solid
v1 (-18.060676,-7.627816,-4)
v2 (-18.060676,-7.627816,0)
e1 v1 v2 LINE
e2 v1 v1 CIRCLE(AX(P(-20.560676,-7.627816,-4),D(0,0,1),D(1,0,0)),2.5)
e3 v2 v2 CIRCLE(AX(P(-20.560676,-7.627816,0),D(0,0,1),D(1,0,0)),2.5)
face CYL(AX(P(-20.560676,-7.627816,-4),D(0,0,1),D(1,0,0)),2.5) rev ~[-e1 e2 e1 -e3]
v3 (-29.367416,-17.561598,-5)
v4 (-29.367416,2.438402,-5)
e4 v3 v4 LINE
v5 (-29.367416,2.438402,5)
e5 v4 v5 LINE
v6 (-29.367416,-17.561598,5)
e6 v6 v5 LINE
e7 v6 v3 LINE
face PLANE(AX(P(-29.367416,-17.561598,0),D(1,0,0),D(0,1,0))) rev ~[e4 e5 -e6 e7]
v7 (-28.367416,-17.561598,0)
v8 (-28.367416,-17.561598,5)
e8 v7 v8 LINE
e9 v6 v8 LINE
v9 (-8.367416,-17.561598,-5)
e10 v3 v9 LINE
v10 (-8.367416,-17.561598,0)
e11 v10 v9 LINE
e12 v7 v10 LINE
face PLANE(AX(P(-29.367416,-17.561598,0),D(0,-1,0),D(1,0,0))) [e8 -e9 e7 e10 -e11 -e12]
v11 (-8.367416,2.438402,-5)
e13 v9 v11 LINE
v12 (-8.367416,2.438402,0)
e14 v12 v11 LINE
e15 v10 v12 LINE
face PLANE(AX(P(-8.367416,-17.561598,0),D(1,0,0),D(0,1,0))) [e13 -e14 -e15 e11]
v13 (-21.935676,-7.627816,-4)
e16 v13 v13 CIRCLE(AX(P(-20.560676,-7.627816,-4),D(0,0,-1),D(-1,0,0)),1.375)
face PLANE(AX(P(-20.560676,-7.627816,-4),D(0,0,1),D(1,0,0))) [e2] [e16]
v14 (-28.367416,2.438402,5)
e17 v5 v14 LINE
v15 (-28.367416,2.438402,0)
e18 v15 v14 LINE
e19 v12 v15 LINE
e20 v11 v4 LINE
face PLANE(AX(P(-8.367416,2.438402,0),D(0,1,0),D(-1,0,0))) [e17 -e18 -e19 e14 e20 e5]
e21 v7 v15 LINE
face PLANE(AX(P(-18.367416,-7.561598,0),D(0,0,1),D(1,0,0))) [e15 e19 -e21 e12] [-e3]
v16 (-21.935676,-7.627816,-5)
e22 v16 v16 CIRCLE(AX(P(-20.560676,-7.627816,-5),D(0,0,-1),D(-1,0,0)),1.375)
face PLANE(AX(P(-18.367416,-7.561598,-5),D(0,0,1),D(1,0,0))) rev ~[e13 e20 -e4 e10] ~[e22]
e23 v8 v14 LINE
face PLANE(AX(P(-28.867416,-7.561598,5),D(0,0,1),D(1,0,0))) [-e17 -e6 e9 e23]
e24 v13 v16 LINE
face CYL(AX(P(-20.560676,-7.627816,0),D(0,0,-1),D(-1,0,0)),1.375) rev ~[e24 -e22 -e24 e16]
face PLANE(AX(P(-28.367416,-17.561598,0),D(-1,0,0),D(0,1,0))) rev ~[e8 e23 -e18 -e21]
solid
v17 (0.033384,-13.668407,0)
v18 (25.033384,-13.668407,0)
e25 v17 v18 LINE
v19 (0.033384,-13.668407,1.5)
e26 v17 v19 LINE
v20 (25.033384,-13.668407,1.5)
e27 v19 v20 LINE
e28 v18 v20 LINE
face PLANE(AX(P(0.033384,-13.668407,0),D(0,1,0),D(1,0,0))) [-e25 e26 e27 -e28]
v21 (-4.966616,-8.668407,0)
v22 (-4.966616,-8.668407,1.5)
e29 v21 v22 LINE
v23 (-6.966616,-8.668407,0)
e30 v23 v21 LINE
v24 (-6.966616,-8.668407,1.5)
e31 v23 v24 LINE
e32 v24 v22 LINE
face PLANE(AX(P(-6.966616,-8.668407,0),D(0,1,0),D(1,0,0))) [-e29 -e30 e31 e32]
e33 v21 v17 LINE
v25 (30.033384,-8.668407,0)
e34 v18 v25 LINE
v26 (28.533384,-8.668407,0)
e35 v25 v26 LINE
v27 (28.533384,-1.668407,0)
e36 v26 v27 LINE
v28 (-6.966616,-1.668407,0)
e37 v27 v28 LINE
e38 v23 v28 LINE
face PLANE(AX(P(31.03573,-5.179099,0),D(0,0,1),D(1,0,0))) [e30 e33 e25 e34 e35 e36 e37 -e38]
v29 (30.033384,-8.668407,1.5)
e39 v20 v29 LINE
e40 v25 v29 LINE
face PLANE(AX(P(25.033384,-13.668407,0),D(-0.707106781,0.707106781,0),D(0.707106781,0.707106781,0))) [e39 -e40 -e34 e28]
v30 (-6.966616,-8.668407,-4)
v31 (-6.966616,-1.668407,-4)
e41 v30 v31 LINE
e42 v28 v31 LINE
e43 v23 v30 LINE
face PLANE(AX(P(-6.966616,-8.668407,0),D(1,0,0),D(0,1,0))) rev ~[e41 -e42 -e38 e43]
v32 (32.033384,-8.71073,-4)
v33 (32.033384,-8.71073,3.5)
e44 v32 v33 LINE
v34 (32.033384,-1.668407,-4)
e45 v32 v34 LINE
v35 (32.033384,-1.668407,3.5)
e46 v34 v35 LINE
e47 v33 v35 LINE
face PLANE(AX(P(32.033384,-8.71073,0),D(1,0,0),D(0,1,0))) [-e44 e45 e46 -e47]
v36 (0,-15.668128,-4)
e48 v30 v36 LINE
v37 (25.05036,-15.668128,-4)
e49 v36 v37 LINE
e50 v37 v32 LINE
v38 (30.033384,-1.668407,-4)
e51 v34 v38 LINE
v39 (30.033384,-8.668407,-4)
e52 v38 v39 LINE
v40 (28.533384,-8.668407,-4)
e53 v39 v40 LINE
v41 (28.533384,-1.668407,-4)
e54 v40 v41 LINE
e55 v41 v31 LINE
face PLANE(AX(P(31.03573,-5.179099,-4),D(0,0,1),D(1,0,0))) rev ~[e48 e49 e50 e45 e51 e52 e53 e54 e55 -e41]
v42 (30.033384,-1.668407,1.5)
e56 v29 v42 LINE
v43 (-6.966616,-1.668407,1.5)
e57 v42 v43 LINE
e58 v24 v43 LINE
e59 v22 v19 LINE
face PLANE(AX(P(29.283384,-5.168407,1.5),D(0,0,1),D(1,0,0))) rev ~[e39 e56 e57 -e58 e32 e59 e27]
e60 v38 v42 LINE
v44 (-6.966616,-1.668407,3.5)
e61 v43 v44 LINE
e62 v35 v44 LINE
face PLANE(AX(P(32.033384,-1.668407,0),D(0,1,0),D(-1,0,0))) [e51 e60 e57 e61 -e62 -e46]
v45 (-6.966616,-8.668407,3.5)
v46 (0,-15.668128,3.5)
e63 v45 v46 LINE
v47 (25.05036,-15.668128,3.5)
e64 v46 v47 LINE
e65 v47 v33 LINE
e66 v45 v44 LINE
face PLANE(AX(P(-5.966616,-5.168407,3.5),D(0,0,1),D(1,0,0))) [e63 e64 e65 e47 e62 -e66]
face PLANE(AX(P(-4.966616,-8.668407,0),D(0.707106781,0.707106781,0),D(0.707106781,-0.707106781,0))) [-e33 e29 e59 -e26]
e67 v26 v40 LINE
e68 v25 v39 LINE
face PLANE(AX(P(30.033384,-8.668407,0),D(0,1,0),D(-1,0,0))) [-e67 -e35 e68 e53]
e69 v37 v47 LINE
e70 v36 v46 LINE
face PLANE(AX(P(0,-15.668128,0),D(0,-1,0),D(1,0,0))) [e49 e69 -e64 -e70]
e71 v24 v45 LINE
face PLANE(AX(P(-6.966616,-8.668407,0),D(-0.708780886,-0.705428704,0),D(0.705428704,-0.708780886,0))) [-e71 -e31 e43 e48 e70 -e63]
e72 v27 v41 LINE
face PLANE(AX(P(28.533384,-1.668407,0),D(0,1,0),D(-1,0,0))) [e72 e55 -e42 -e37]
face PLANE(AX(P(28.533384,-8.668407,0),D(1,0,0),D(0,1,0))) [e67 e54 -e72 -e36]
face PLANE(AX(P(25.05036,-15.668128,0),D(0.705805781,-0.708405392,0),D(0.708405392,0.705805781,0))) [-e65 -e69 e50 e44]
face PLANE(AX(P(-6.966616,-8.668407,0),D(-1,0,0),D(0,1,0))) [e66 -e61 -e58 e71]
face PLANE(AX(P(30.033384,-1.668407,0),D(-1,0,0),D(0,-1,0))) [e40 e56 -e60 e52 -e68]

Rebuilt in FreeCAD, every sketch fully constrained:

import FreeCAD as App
import Part
import Sketcher
from FreeCAD import Vector

doc = App.newDocument("Part")
body = doc.addObject("PartDesign::Body", "Body")

sketch1 = body.newObject("Sketcher::SketchObject", "Sketch")
sketch1.AttachmentSupport = (doc.getObject("XY_Plane"), [""])
sketch1.MapMode = "FlatFace"
sketch1.addGeometry(Part.LineSegment(Vector(-7, -2, 0), Vector(-7, -9, 0)), False)
sketch1.addGeometry(Part.LineSegment(Vector(-7, -9, 0), Vector(0, -16, 0)), False)
sketch1.addGeometry(Part.LineSegment(Vector(0, -16, 0), Vector(25, -16, 0)), False)
sketch1.addGeometry(Part.LineSegment(Vector(25, -16, 0), Vector(32, -9, 0)), False)
sketch1.addGeometry(Part.LineSegment(Vector(32, -9, 0), Vector(32, -2, 0)), False)
sketch1.addGeometry(Part.LineSegment(Vector(32, -2, 0), Vector(-7, -2, 0)), False)
sketch1.addConstraint(Sketcher.Constraint("Coincident", 0, 2, 1, 1))
sketch1.addConstraint(Sketcher.Constraint("Coincident", 1, 2, 2, 1))
sketch1.addConstraint(Sketcher.Constraint("Coincident", 2, 2, 3, 1))
sketch1.addConstraint(Sketcher.Constraint("Coincident", 3, 2, 4, 1))
sketch1.addConstraint(Sketcher.Constraint("Coincident", 4, 2, 5, 1))
sketch1.addConstraint(Sketcher.Constraint("Coincident", 5, 2, 0, 1))
sketch1.addConstraint(Sketcher.Constraint("Vertical", 0))
sketch1.addConstraint(Sketcher.Constraint("Horizontal", 2))
sketch1.addConstraint(Sketcher.Constraint("Vertical", 4))
sketch1.addConstraint(Sketcher.Constraint("Horizontal", 5))
sketch1.addConstraint(Sketcher.Constraint("PointOnObject", 1, 2, -2))
sketch1.addConstraint(Sketcher.Constraint("DistanceX", 5, 2, 5, 1, 39.0))
sketch1.addConstraint(Sketcher.Constraint("DistanceY", 0, 2, 0, 1, 7.0))
sketch1.addConstraint(Sketcher.Constraint("DistanceX", 2, 1, 2, 2, 25.05036))
sketch1.addConstraint(Sketcher.Constraint("DistanceY", 2, 2, 3, 2, 6.957398))
sketch1.addConstraint(Sketcher.Constraint("Distance", 1, 9.87572))
sketch1.addConstraint(Sketcher.Constraint("DistanceY", 4, 1, 4, 2, 7.042323))
sketch1.addConstraint(Sketcher.Constraint("DistanceY", 1, 2, -1, 1, 15.668128))
pad1 = body.newObject("PartDesign::Pad", "Pad")
pad1.Profile = sketch1
pad1.Length = 3.5

sketch2 = body.newObject("Sketcher::SketchObject", "Sketch001")
sketch2.AttachmentSupport = (doc.getObject("XY_Plane"), [""])
sketch2.MapMode = "FlatFace"
sketch2.addGeometry(Part.LineSegment(Vector(30, -8.7, 0), Vector(30, -1.7, 0)), False)
sketch2.addGeometry(Part.LineSegment(Vector(30, -1.7, 0), Vector(-7, -1.7, 0)), False)
sketch2.addGeometry(Part.LineSegment(Vector(-7, -1.7, 0), Vector(-7, -8.7, 0)), False)
sketch2.addGeometry(Part.LineSegment(Vector(-7, -8.7, 0), Vector(-5, -8.7, 0)), False)
sketch2.addGeometry(Part.LineSegment(Vector(-5, -8.7, 0), Vector(0, -13.7, 0)), False)
sketch2.addGeometry(Part.LineSegment(Vector(0, -13.7, 0), Vector(25, -13.7, 0)), False)
sketch2.addGeometry(Part.LineSegment(Vector(25, -13.7, 0), Vector(30, -8.7, 0)), False)
sketch2.addConstraint(Sketcher.Constraint("Coincident", 0, 2, 1, 1))
sketch2.addConstraint(Sketcher.Constraint("Coincident", 1, 2, 2, 1))
sketch2.addConstraint(Sketcher.Constraint("Coincident", 2, 2, 3, 1))
sketch2.addConstraint(Sketcher.Constraint("Coincident", 3, 2, 4, 1))
sketch2.addConstraint(Sketcher.Constraint("Coincident", 4, 2, 5, 1))
sketch2.addConstraint(Sketcher.Constraint("Coincident", 5, 2, 6, 1))
sketch2.addConstraint(Sketcher.Constraint("Coincident", 6, 2, 0, 1))
sketch2.addConstraint(Sketcher.Constraint("Vertical", 0))
sketch2.addConstraint(Sketcher.Constraint("Horizontal", 1))
sketch2.addConstraint(Sketcher.Constraint("Vertical", 2))
sketch2.addConstraint(Sketcher.Constraint("Horizontal", 3))
sketch2.addConstraint(Sketcher.Constraint("Horizontal", 5))
sketch2.addConstraint(Sketcher.Constraint("Perpendicular", 4, 6))
sketch2.addConstraint(Sketcher.Constraint("Horizontal", 3, 2, 6, 2))
sketch2.addConstraint(Sketcher.Constraint("Equal", 4, 6))
sketch2.addConstraint(Sketcher.Constraint("DistanceX", 1, 2, 1, 1, 37.0))
sketch2.addConstraint(Sketcher.Constraint("DistanceX", 3, 1, 3, 2, 2.0))
sketch2.addConstraint(Sketcher.Constraint("DistanceX", 5, 1, 5, 2, 25.0))
sketch2.addConstraint(Sketcher.Constraint("DistanceY", 0, 1, 0, 2, 7.0))
sketch2.addConstraint(Sketcher.Constraint("DistanceX", -1, 1, 0, 2, 30.033384))
sketch2.addConstraint(Sketcher.Constraint("DistanceY", 0, 2, -1, 1, 1.668407))
pocket1 = body.newObject("PartDesign::Pocket", "Pocket")
pocket1.Profile = sketch2
pocket1.Length = 1.5
pocket1.Reversed = True

sketch3 = body.newObject("Sketcher::SketchObject", "Sketch002")
sketch3.AttachmentSupport = (doc.getObject("XY_Plane"), [""])
sketch3.MapMode = "FlatFace"
sketch3.addGeometry(Part.LineSegment(Vector(-7, -8.7, 0), Vector(0, -15.7, 0)), False)
sketch3.addGeometry(Part.LineSegment(Vector(0, -15.7, 0), Vector(25.1, -15.7, 0)), False)
sketch3.addGeometry(Part.LineSegment(Vector(25.1, -15.7, 0), Vector(32, -8.7, 0)), False)
sketch3.addGeometry(Part.LineSegment(Vector(32, -8.7, 0), Vector(32, -1.7, 0)), False)
sketch3.addGeometry(Part.LineSegment(Vector(32, -1.7, 0), Vector(30, -1.7, 0)), False)
sketch3.addGeometry(Part.LineSegment(Vector(30, -1.7, 0), Vector(30, -8.7, 0)), False)
sketch3.addGeometry(Part.LineSegment(Vector(30, -8.7, 0), Vector(28.5, -8.7, 0)), False)
sketch3.addGeometry(Part.LineSegment(Vector(28.5, -8.7, 0), Vector(28.5, -1.7, 0)), False)
sketch3.addGeometry(Part.LineSegment(Vector(28.5, -1.7, 0), Vector(-7, -1.7, 0)), False)
sketch3.addGeometry(Part.LineSegment(Vector(-7, -1.7, 0), Vector(-7, -8.7, 0)), False)
sketch3.addConstraint(Sketcher.Constraint("Coincident", 0, 2, 1, 1))
sketch3.addConstraint(Sketcher.Constraint("Coincident", 1, 2, 2, 1))
sketch3.addConstraint(Sketcher.Constraint("Coincident", 2, 2, 3, 1))
sketch3.addConstraint(Sketcher.Constraint("Coincident", 3, 2, 4, 1))
sketch3.addConstraint(Sketcher.Constraint("Coincident", 4, 2, 5, 1))
sketch3.addConstraint(Sketcher.Constraint("Coincident", 5, 2, 6, 1))
sketch3.addConstraint(Sketcher.Constraint("Coincident", 6, 2, 7, 1))
sketch3.addConstraint(Sketcher.Constraint("Coincident", 7, 2, 8, 1))
sketch3.addConstraint(Sketcher.Constraint("Coincident", 8, 2, 9, 1))
sketch3.addConstraint(Sketcher.Constraint("Coincident", 9, 2, 0, 1))
sketch3.addConstraint(Sketcher.Constraint("Horizontal", 1))
sketch3.addConstraint(Sketcher.Constraint("Vertical", 3))
sketch3.addConstraint(Sketcher.Constraint("Horizontal", 4))
sketch3.addConstraint(Sketcher.Constraint("Vertical", 5))
sketch3.addConstraint(Sketcher.Constraint("Horizontal", 6))
sketch3.addConstraint(Sketcher.Constraint("Vertical", 7))
sketch3.addConstraint(Sketcher.Constraint("Horizontal", 8))
sketch3.addConstraint(Sketcher.Constraint("Vertical", 9))
sketch3.addConstraint(Sketcher.Constraint("PointOnObject", 0, 2, -2))
sketch3.addConstraint(Sketcher.Constraint("Horizontal", 4, 2, 7, 2))
sketch3.addConstraint(Sketcher.Constraint("Horizontal", 6, 2, 9, 2))
sketch3.addConstraint(Sketcher.Constraint("DistanceX", 4, 2, 4, 1, 2.0))
sketch3.addConstraint(Sketcher.Constraint("DistanceY", 5, 2, 5, 1, 7.0))
sketch3.addConstraint(Sketcher.Constraint("DistanceX", 6, 2, 6, 1, 1.5))
sketch3.addConstraint(Sketcher.Constraint("DistanceX", 8, 2, 8, 1, 35.5))
sketch3.addConstraint(Sketcher.Constraint("DistanceX", 1, 1, 1, 2, 25.05036))
sketch3.addConstraint(Sketcher.Constraint("DistanceY", 1, 2, 2, 2, 6.957398))
sketch3.addConstraint(Sketcher.Constraint("Distance", 0, 9.87572))
sketch3.addConstraint(Sketcher.Constraint("DistanceY", 3, 1, 3, 2, 7.042323))
sketch3.addConstraint(Sketcher.Constraint("DistanceY", 0, 2, -1, 1, 15.668128))
pad2 = body.newObject("PartDesign::Pad", "Pad001")
pad2.Profile = sketch3
pad2.Length = 4
pad2.Reversed = True
body2 = doc.addObject("PartDesign::Body", "Body001")

sketch4 = body2.newObject("Sketcher::SketchObject", "Sketch003")
sketch4.AttachmentSupport = (doc.getObject("XY_Plane001"), [""])
sketch4.MapMode = "FlatFace"
sketch4.addGeometry(Part.LineSegment(Vector(-29.4, 2.4, 0), Vector(-29.4, -17.6, 0)), False)
sketch4.addGeometry(Part.LineSegment(Vector(-29.4, -17.6, 0), Vector(-28.4, -17.6, 0)), False)
sketch4.addGeometry(Part.LineSegment(Vector(-28.4, -17.6, 0), Vector(-28.4, 2.4, 0)), False)
sketch4.addGeometry(Part.LineSegment(Vector(-28.4, 2.4, 0), Vector(-29.4, 2.4, 0)), False)
sketch4.addConstraint(Sketcher.Constraint("Coincident", 0, 2, 1, 1))
sketch4.addConstraint(Sketcher.Constraint("Coincident", 1, 2, 2, 1))
sketch4.addConstraint(Sketcher.Constraint("Coincident", 2, 2, 3, 1))
sketch4.addConstraint(Sketcher.Constraint("Coincident", 3, 2, 0, 1))
sketch4.addConstraint(Sketcher.Constraint("Vertical", 0))
sketch4.addConstraint(Sketcher.Constraint("Horizontal", 1))
sketch4.addConstraint(Sketcher.Constraint("Vertical", 2))
sketch4.addConstraint(Sketcher.Constraint("Horizontal", 3))
sketch4.addConstraint(Sketcher.Constraint("DistanceX", 1, 1, 1, 2, 1.0))
sketch4.addConstraint(Sketcher.Constraint("DistanceY", 0, 2, 0, 1, 20.0))
sketch4.addConstraint(Sketcher.Constraint("DistanceX", 0, 2, -1, 1, 29.367416))
sketch4.addConstraint(Sketcher.Constraint("DistanceY", 0, 2, -1, 1, 17.561598))
pad3 = body2.newObject("PartDesign::Pad", "Pad002")
pad3.Profile = sketch4
pad3.Length = 5

sketch5 = body2.newObject("Sketcher::SketchObject", "Sketch004")
sketch5.AttachmentSupport = (doc.getObject("XY_Plane001"), [""])
sketch5.MapMode = "FlatFace"
sketch5.addGeometry(Part.LineSegment(Vector(-8, -18, 0), Vector(-8, 2, 0)), False)
sketch5.addGeometry(Part.LineSegment(Vector(-8, 2, 0), Vector(-29, 2, 0)), False)
sketch5.addGeometry(Part.LineSegment(Vector(-29, 2, 0), Vector(-29, -18, 0)), False)
sketch5.addGeometry(Part.LineSegment(Vector(-29, -18, 0), Vector(-8, -18, 0)), False)
sketch5.addConstraint(Sketcher.Constraint("Coincident", 0, 2, 1, 1))
sketch5.addConstraint(Sketcher.Constraint("Coincident", 1, 2, 2, 1))
sketch5.addConstraint(Sketcher.Constraint("Coincident", 2, 2, 3, 1))
sketch5.addConstraint(Sketcher.Constraint("Coincident", 3, 2, 0, 1))
sketch5.addConstraint(Sketcher.Constraint("Vertical", 0))
sketch5.addConstraint(Sketcher.Constraint("Horizontal", 1))
sketch5.addConstraint(Sketcher.Constraint("Vertical", 2))
sketch5.addConstraint(Sketcher.Constraint("Horizontal", 3))
sketch5.addConstraint(Sketcher.Constraint("DistanceX", 1, 2, 1, 1, 21.0))
sketch5.addConstraint(Sketcher.Constraint("DistanceY", 0, 1, 0, 2, 20.0))
sketch5.addConstraint(Sketcher.Constraint("DistanceX", 0, 2, -1, 1, 8.367416))
sketch5.addConstraint(Sketcher.Constraint("DistanceY", -1, 1, 0, 2, 2.438402))
pad4 = body2.newObject("PartDesign::Pad", "Pad003")
pad4.Profile = sketch5
pad4.Length = 5
pad4.Reversed = True

sketch6 = body2.newObject("Sketcher::SketchObject", "Sketch005")
sketch6.AttachmentSupport = (doc.getObject("XY_Plane001"), [""])
sketch6.MapMode = "FlatFace"
sketch6.addGeometry(Part.Circle(Vector(-20.6, -7.6, 0), Vector(0, 0, 1), 1.4), False)
sketch6.addGeometry(Part.Circle(Vector(-20.6, -7.6, 0), Vector(0, 0, 1), 1.4), False)
sketch6.addConstraint(Sketcher.Constraint("Coincident", 1, 3, 0, 3))
sketch6.addConstraint(Sketcher.Constraint("Equal", 0, 1))
sketch6.addConstraint(Sketcher.Constraint("Diameter", 0, 2.75))
sketch6.addConstraint(Sketcher.Constraint("DistanceX", 0, 3, -1, 1, 20.560676))
sketch6.addConstraint(Sketcher.Constraint("DistanceY", 0, 3, -1, 1, 7.627816))
doc.recompute()
hole = body2.newObject("PartDesign::Hole", "Hole")
hole.Profile = sketch6
hole.ThreadType = "None"
hole.Diameter = 2.75
hole.DepthType = "ThroughAll"
hole.HoleCutType = "Counterbore"
hole.HoleCutDiameter = 5
hole.HoleCutDepth = 4

doc.recompute()
